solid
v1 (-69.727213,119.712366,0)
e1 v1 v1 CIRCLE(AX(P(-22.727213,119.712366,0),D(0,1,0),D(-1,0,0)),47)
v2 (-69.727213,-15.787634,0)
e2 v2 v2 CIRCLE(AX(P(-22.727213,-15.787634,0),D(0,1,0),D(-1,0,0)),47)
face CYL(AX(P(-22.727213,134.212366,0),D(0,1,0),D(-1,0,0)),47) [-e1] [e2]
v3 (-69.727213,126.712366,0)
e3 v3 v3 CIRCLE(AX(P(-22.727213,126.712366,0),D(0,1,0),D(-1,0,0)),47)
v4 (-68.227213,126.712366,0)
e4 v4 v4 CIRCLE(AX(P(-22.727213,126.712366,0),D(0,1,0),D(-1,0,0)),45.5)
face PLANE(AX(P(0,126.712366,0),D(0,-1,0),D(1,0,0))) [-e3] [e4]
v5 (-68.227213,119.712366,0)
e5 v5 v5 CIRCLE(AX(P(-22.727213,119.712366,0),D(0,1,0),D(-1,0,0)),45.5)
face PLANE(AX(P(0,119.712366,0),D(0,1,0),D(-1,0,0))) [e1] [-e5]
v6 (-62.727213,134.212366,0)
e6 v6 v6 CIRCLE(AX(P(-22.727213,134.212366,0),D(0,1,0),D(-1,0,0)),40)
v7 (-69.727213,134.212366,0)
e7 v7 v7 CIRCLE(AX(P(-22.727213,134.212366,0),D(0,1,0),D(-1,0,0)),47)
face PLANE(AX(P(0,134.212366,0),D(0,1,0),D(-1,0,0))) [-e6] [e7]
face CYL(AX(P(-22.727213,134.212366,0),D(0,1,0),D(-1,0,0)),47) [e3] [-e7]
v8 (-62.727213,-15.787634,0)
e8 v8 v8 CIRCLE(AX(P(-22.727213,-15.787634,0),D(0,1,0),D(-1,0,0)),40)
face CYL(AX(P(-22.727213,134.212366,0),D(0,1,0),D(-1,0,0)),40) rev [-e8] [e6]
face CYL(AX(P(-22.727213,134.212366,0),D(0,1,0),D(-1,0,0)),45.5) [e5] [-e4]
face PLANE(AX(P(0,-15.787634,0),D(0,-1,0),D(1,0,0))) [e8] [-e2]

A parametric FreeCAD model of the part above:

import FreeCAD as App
import Part
import Sketcher
Q = App.Units.Quantity

doc = App.newDocument("Part")
body = doc.addObject("PartDesign::Body", "Body")

# Sketch on XY plane
sketch1 = body.newObject("Sketcher::SketchObject", "Sketch")
sketch1.AttachmentSupport = (doc.getObject("XY_Plane"), [""])
sketch1.MapMode = "FlatFace"
sketch1.addGeometry([
    Part.LineSegment(App.Vector(17.272787, 134.212366, 0), App.Vector(17.272787, -15.787634, 0)),  # 0
    Part.LineSegment(App.Vector(17.272787, -15.787634, 0), App.Vector(24.272787, -15.787634, 0)),  # 1
    Part.LineSegment(App.Vector(24.272787, -15.787634, 0), App.Vector(24.272787, 119.712366, 0)),  # 2
    Part.LineSegment(App.Vector(24.272787, 119.712366, 0), App.Vector(22.772787, 119.712366, 0)),  # 3
    Part.LineSegment(App.Vector(22.772787, 119.712366, 0), App.Vector(22.772787, 126.712366, 0)),  # 4
    Part.LineSegment(App.Vector(22.772787, 126.712366, 0), App.Vector(24.272787, 126.712366, 0)),  # 5
    Part.LineSegment(App.Vector(24.272787, 126.712366, 0), App.Vector(24.272787, 134.212366, 0)),  # 6
    Part.LineSegment(App.Vector(24.272787, 134.212366, 0), App.Vector(17.272787, 134.212366, 0)),  # 7
], False)
sketch1.addGeometry(Part.LineSegment(App.Vector(-22.727213, 134.212366, 0), App.Vector(-22.727213, -15.787634, 0)), True)  # axis
sketch1.addConstraint([
    Sketcher.Constraint("Coincident", 0, 2, 1, 1),
    Sketcher.Constraint("Coincident", 1, 2, 2, 1),
    Sketcher.Constraint("Coincident", 2, 2, 3, 1),
    Sketcher.Constraint("Coincident", 3, 2, 4, 1),
    Sketcher.Constraint("Coincident", 4, 2, 5, 1),
    Sketcher.Constraint("Coincident", 5, 2, 6, 1),
    Sketcher.Constraint("Coincident", 6, 2, 7, 1),
    Sketcher.Constraint("Coincident", 7, 2, 0, 1),
    Sketcher.Constraint("Vertical", 0),
    Sketcher.Constraint("Horizontal", 1),
    Sketcher.Constraint("Vertical", 2),
    Sketcher.Constraint("Horizontal", 3),
    Sketcher.Constraint("Vertical", 4),
    Sketcher.Constraint("Horizontal", 5),
    Sketcher.Constraint("Vertical", 6),
    Sketcher.Constraint("Horizontal", 7),
    Sketcher.Constraint("Vertical", 8),
    Sketcher.Constraint("Horizontal", 7, 2, 8, 1),
    Sketcher.Constraint("Horizontal", 1, 2, 8, 2),
    Sketcher.Constraint("Vertical", 2, 2, 5, 2),
    Sketcher.Constraint("Equal", 7, 4),
    Sketcher.Constraint("DistanceX", 1, 1, 1, 2, Q("7 mm")),
    Sketcher.Constraint("DistanceY", 0, 2, 0, 1, Q("150 mm")),
    Sketcher.Constraint("DistanceX", 3, 2, 3, 1, Q("1.5 mm")),
    Sketcher.Constraint("DistanceY", 2, 1, 2, 2, Q("135.5 mm")),
    Sketcher.Constraint("DistanceX", 8, 1, 7, 2, Q("40 mm")),
    Sketcher.Constraint("DistanceX", -1, 1, 0, 2, Q("17.272787 mm")),
    Sketcher.Constraint("DistanceY", 0, 2, -1, 1, Q("15.787634 mm")),
])
revolution = body.newObject("PartDesign::Revolution", "Revolution")
revolution.Profile = sketch1
revolution.ReferenceAxis = (sketch1, ["Axis0"])
revolution.Angle = 360

doc.recompute()
